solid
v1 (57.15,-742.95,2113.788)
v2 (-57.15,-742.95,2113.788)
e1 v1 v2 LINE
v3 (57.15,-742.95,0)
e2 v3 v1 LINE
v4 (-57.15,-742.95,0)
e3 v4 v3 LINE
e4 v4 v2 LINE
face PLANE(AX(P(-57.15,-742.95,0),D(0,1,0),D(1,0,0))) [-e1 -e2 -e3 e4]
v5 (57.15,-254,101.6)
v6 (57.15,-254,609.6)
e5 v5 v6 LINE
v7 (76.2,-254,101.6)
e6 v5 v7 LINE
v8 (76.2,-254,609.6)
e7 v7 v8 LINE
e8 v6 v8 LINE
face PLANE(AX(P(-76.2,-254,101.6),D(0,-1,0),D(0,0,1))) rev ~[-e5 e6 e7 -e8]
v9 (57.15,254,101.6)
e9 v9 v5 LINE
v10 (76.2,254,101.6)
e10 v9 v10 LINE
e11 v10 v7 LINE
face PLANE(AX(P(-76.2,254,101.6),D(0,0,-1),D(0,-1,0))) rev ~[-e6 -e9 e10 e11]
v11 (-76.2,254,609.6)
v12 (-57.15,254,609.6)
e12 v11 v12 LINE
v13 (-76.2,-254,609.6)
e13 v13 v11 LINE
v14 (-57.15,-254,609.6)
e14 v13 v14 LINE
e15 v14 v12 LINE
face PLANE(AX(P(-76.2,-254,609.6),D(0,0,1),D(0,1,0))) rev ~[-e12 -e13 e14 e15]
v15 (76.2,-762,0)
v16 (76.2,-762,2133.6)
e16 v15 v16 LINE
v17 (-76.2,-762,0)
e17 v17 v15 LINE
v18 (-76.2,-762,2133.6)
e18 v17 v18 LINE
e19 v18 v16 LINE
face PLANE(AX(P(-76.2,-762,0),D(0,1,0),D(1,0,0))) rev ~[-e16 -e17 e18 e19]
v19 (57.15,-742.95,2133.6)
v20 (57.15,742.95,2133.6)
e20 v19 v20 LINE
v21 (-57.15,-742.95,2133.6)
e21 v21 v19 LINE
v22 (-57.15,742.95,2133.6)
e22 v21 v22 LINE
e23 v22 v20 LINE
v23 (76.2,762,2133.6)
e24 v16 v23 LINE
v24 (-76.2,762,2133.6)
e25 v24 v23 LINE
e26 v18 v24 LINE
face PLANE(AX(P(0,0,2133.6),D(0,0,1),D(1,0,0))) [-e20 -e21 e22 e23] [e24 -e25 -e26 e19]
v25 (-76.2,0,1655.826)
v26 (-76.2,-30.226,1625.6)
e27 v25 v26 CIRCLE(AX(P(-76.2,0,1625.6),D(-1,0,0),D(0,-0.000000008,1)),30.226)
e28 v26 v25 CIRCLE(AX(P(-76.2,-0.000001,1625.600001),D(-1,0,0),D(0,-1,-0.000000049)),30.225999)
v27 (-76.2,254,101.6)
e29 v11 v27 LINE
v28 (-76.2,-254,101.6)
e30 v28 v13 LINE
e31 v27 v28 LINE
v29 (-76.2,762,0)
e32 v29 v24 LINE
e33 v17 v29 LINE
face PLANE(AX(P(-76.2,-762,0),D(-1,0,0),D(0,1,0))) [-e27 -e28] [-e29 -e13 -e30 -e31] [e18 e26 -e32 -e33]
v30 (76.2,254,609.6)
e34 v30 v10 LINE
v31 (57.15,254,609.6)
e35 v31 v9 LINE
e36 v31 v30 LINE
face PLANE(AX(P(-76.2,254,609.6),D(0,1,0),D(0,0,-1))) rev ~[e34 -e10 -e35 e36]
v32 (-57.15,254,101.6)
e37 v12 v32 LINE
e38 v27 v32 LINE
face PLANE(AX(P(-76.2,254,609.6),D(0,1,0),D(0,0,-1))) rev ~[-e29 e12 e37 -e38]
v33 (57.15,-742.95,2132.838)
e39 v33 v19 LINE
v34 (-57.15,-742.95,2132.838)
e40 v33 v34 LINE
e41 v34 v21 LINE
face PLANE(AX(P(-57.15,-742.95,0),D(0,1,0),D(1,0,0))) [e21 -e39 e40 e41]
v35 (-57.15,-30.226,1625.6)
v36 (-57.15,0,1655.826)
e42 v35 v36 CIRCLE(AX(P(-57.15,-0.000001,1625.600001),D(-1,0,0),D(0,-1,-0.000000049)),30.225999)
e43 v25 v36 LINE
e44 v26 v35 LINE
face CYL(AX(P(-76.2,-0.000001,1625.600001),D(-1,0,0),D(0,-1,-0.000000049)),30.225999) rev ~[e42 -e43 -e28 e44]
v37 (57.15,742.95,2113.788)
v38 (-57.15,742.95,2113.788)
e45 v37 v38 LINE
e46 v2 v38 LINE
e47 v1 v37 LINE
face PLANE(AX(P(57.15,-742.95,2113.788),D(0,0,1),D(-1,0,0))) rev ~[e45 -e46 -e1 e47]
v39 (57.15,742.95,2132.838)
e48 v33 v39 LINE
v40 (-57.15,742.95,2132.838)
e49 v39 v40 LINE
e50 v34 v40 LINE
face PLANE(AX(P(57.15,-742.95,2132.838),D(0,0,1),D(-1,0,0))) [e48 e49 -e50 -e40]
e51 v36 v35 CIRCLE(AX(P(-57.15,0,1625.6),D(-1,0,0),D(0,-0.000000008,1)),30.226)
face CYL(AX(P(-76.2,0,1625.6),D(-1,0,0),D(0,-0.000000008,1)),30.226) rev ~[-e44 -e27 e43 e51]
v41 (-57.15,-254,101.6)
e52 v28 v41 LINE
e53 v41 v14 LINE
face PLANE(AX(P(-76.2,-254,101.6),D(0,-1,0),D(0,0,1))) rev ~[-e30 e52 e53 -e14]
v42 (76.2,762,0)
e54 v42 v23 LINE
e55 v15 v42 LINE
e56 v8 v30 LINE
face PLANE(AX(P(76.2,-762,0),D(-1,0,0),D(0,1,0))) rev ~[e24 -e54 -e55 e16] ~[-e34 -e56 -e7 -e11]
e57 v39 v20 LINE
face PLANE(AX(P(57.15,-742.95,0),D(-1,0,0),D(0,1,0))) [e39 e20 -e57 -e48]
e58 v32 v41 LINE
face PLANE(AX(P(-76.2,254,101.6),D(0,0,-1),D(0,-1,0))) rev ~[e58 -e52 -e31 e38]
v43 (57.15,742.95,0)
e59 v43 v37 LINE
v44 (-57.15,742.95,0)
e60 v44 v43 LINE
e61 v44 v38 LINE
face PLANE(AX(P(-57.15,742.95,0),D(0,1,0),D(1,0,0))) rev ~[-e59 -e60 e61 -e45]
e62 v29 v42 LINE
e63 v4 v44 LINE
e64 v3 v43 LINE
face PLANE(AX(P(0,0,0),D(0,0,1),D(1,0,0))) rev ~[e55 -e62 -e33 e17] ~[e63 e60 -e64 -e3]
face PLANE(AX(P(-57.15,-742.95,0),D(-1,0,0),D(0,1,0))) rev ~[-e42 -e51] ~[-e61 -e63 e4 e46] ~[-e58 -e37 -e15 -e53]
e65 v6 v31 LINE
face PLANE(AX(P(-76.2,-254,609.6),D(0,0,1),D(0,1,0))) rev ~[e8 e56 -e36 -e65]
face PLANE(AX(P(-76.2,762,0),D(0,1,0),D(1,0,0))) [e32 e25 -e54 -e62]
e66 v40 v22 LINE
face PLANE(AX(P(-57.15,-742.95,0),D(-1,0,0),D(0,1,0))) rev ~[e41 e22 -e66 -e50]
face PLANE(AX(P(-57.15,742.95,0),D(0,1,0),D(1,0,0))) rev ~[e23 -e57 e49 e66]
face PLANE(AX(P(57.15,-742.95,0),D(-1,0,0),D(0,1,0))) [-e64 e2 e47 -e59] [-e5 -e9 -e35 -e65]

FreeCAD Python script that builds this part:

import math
import FreeCAD as App
import Part
import Sketcher
Q = App.Units.Quantity

doc = App.newDocument("Part")
body = doc.addObject("PartDesign::Body", "Body")

sketch1 = doc.addObject("Sketcher::SketchObject", "Sketch")
body.addObject(sketch1)
sketch1.AttachmentSupport = (doc.XY_Plane, [""])
sketch1.MapMode = "FlatFace"
sketch1.addGeometry([
    Part.LineSegment(App.Vector(-76, 762, 0), App.Vector(-76, -762, 0)),
    Part.LineSegment(App.Vector(-76, -762, 0), App.Vector(76, -762, 0)),
    Part.LineSegment(App.Vector(76, -762, 0), App.Vector(76, 762, 0)),
    Part.LineSegment(App.Vector(76, 762, 0), App.Vector(-76, 762, 0)),
    Part.LineSegment(App.Vector(57, -743, 0), App.Vector(-57, -743, 0)),
    Part.LineSegment(App.Vector(-57, -743, 0), App.Vector(-57, 743, 0)),
    Part.LineSegment(App.Vector(-57, 743, 0), App.Vector(57, 743, 0)),
    Part.LineSegment(App.Vector(57, 743, 0), App.Vector(57, -743, 0)),
], False)
sketch1.addConstraint([
    Sketcher.Constraint("Coincident", 0, 2, 1, 1),
    Sketcher.Constraint("Coincident", 1, 2, 2, 1),
    Sketcher.Constraint("Coincident", 2, 2, 3, 1),
    Sketcher.Constraint("Coincident", 3, 2, 0, 1),
    Sketcher.Constraint("Coincident", 4, 2, 5, 1),
    Sketcher.Constraint("Coincident", 5, 2, 6, 1),
    Sketcher.Constraint("Coincident", 6, 2, 7, 1),
    Sketcher.Constraint("Coincident", 7, 2, 4, 1),
    Sketcher.Constraint("Vertical", 0),
    Sketcher.Constraint("Horizontal", 1),
    Sketcher.Constraint("Vertical", 2),
    Sketcher.Constraint("Horizontal", 3),
    Sketcher.Constraint("Horizontal", 4),
    Sketcher.Constraint("Vertical", 5),
    Sketcher.Constraint("Horizontal", 6),
    Sketcher.Constraint("Vertical", 7),
    Sketcher.Constraint("Symmetric", 0, 2, 2, 2, -1, 1),
    Sketcher.Constraint("Symmetric", 4, 2, 6, 2, -1, 1),
    Sketcher.Constraint("DistanceX", 1, 1, 1, 2, Q("6 in")),
    Sketcher.Constraint("DistanceY", 0, 2, 0, 1, Q("60 in")),
    Sketcher.Constraint("DistanceX", 4, 2, 4, 1, Q("4.5 in")),
    Sketcher.Constraint("DistanceY", 5, 1, 5, 2, Q("58.5 in")),
])
pad1 = doc.addObject("PartDesign::Pad", "Pad")
body.addObject(pad1)
pad1.Profile = sketch1
pad1.Length = Q("84 in")

sketch2 = doc.addObject("Sketcher::SketchObject", "Sketch001")
body.addObject(sketch2)
sketch2.AttachmentSupport = (doc.XZ_Plane, [""])
sketch2.MapMode = "FlatFace"
sketch2.AttachmentOffset = App.Placement(App.Vector(0, 0, 29.25 * 25.4), App.Rotation())
sketch2.addGeometry([
    Part.LineSegment(App.Vector(57, 2133, 0), App.Vector(57, 2114, 0)),
    Part.LineSegment(App.Vector(57, 2114, 0), App.Vector(-57, 2114, 0)),
    Part.LineSegment(App.Vector(-57, 2114, 0), App.Vector(-57, 2133, 0)),
    Part.LineSegment(App.Vector(-57, 2133, 0), App.Vector(57, 2133, 0)),
], False)
sketch2.addConstraint([
    Sketcher.Constraint("Coincident", 0, 2, 1, 1),
    Sketcher.Constraint("Coincident", 1, 2, 2, 1),
    Sketcher.Constraint("Coincident", 2, 2, 3, 1),
    Sketcher.Constraint("Coincident", 3, 2, 0, 1),
    Sketcher.Constraint("Vertical", 0),
    Sketcher.Constraint("Horizontal", 1),
    Sketcher.Constraint("Vertical", 2),
    Sketcher.Constraint("Horizontal", 3),
    Sketcher.Constraint("DistanceX", 1, 2, 1, 1, Q("4.5 in")),
    Sketcher.Constraint("DistanceY", 0, 2, 0, 1, Q("0.75 in")),
    Sketcher.Constraint("DistanceX", -1, 1, 0, 2, Q("2.25 in")),
    Sketcher.Constraint("DistanceY", -1, 1, 0, 2, Q("83.22 in")),
])
pad2 = doc.addObject("PartDesign::Pad", "Pad001")
body.addObject(pad2)
pad2.Profile = sketch2
pad2.Length = Q("58.5 in")
pad2.Reversed = True

sketch3 = doc.addObject("Sketcher::SketchObject", "Sketch002")
body.addObject(sketch3)
sketch3.AttachmentSupport = (doc.YZ_Plane, [""])
sketch3.MapMode = "FlatFace"
sketch3.AttachmentOffset = App.Placement(App.Vector(0, 0, -3 * 25.4), App.Rotation())
sketch3.addGeometry([
    Part.ArcOfCircle(Part.Circle(App.Vector(0, 1626, 0), App.Vector(0, 0, 1), 30), math.radians(90), math.radians(180)),
    Part.ArcOfCircle(Part.Circle(App.Vector(0, 1626, 0), App.Vector(0, 0, 1), 30), math.radians(180), math.radians(450)),
], False)
sketch3.addConstraint([
    Sketcher.Constraint("Tangent", 0, 1, 1, 2),
    Sketcher.Constraint("Coincident", 1, 1, 0, 2),
    Sketcher.Constraint("PointOnObject", 0, 3, -2),
    Sketcher.Constraint("PointOnObject", 0, 1, -2),
    Sketcher.Constraint("Horizontal", 0, 3, 1, 1),
    Sketcher.Constraint("Radius", 0, Q("1.1899999 in")),
    Sketcher.Constraint("DistanceY", -1, 1, 0, 3, Q("64.0000001 in")),
])
pocket1 = doc.addObject("PartDesign::Pocket", "Pocket")
body.addObject(pocket1)
pocket1.Profile = sketch3
pocket1.Length = Q("1 in")
pocket1.Reversed = True

sketch4 = doc.addObject("Sketcher::SketchObject", "Sketch003")
body.addObject(sketch4)
sketch4.AttachmentSupport = (doc.YZ_Plane, [""])
sketch4.MapMode = "FlatFace"
sketch4.AttachmentOffset = App.Placement(App.Vector(0, 0, -3 * 25.4), App.Rotation())
sketch4.addGeometry([
    Part.LineSegment(App.Vector(254, 102, 0), App.Vector(-254, 102, 0)),
    Part.LineSegment(App.Vector(-254, 102, 0), App.Vector(-254, 610, 0)),
    Part.LineSegment(App.Vector(-254, 610, 0), App.Vector(254, 610, 0)),
    Part.LineSegment(App.Vector(254, 610, 0), App.Vector(254, 102, 0)),
], False)
sketch4.addConstraint([
    Sketcher.Constraint("Coincident", 0, 2, 1, 1),
    Sketcher.Constraint("Coincident", 1, 2, 2, 1),
    Sketcher.Constraint("Coincident", 2, 2, 3, 1),
    Sketcher.Constraint("Coincident", 3, 2, 0, 1),
    Sketcher.Constraint("Horizontal", 0),
    Sketcher.Constraint("Vertical", 1),
    Sketcher.Constraint("Horizontal", 2),
    Sketcher.Constraint("Vertical", 3),
    Sketcher.Constraint("Equal", 2, 1),
    Sketcher.Constraint("DistanceX", 0, 2, 0, 1, Q("20 in")),
    Sketcher.Constraint("DistanceX", 0, 2, -1, 1, Q("10 in")),
    Sketcher.Constraint("DistanceY", -1, 1, 0, 2, Q("4 in")),
])
pocket2 = doc.addObject("PartDesign::Pocket", "Pocket001")
body.addObject(pocket2)
pocket2.Profile = sketch4
pocket2.Length = Q("7 in")
pocket2.Reversed = True

doc.recompute()
